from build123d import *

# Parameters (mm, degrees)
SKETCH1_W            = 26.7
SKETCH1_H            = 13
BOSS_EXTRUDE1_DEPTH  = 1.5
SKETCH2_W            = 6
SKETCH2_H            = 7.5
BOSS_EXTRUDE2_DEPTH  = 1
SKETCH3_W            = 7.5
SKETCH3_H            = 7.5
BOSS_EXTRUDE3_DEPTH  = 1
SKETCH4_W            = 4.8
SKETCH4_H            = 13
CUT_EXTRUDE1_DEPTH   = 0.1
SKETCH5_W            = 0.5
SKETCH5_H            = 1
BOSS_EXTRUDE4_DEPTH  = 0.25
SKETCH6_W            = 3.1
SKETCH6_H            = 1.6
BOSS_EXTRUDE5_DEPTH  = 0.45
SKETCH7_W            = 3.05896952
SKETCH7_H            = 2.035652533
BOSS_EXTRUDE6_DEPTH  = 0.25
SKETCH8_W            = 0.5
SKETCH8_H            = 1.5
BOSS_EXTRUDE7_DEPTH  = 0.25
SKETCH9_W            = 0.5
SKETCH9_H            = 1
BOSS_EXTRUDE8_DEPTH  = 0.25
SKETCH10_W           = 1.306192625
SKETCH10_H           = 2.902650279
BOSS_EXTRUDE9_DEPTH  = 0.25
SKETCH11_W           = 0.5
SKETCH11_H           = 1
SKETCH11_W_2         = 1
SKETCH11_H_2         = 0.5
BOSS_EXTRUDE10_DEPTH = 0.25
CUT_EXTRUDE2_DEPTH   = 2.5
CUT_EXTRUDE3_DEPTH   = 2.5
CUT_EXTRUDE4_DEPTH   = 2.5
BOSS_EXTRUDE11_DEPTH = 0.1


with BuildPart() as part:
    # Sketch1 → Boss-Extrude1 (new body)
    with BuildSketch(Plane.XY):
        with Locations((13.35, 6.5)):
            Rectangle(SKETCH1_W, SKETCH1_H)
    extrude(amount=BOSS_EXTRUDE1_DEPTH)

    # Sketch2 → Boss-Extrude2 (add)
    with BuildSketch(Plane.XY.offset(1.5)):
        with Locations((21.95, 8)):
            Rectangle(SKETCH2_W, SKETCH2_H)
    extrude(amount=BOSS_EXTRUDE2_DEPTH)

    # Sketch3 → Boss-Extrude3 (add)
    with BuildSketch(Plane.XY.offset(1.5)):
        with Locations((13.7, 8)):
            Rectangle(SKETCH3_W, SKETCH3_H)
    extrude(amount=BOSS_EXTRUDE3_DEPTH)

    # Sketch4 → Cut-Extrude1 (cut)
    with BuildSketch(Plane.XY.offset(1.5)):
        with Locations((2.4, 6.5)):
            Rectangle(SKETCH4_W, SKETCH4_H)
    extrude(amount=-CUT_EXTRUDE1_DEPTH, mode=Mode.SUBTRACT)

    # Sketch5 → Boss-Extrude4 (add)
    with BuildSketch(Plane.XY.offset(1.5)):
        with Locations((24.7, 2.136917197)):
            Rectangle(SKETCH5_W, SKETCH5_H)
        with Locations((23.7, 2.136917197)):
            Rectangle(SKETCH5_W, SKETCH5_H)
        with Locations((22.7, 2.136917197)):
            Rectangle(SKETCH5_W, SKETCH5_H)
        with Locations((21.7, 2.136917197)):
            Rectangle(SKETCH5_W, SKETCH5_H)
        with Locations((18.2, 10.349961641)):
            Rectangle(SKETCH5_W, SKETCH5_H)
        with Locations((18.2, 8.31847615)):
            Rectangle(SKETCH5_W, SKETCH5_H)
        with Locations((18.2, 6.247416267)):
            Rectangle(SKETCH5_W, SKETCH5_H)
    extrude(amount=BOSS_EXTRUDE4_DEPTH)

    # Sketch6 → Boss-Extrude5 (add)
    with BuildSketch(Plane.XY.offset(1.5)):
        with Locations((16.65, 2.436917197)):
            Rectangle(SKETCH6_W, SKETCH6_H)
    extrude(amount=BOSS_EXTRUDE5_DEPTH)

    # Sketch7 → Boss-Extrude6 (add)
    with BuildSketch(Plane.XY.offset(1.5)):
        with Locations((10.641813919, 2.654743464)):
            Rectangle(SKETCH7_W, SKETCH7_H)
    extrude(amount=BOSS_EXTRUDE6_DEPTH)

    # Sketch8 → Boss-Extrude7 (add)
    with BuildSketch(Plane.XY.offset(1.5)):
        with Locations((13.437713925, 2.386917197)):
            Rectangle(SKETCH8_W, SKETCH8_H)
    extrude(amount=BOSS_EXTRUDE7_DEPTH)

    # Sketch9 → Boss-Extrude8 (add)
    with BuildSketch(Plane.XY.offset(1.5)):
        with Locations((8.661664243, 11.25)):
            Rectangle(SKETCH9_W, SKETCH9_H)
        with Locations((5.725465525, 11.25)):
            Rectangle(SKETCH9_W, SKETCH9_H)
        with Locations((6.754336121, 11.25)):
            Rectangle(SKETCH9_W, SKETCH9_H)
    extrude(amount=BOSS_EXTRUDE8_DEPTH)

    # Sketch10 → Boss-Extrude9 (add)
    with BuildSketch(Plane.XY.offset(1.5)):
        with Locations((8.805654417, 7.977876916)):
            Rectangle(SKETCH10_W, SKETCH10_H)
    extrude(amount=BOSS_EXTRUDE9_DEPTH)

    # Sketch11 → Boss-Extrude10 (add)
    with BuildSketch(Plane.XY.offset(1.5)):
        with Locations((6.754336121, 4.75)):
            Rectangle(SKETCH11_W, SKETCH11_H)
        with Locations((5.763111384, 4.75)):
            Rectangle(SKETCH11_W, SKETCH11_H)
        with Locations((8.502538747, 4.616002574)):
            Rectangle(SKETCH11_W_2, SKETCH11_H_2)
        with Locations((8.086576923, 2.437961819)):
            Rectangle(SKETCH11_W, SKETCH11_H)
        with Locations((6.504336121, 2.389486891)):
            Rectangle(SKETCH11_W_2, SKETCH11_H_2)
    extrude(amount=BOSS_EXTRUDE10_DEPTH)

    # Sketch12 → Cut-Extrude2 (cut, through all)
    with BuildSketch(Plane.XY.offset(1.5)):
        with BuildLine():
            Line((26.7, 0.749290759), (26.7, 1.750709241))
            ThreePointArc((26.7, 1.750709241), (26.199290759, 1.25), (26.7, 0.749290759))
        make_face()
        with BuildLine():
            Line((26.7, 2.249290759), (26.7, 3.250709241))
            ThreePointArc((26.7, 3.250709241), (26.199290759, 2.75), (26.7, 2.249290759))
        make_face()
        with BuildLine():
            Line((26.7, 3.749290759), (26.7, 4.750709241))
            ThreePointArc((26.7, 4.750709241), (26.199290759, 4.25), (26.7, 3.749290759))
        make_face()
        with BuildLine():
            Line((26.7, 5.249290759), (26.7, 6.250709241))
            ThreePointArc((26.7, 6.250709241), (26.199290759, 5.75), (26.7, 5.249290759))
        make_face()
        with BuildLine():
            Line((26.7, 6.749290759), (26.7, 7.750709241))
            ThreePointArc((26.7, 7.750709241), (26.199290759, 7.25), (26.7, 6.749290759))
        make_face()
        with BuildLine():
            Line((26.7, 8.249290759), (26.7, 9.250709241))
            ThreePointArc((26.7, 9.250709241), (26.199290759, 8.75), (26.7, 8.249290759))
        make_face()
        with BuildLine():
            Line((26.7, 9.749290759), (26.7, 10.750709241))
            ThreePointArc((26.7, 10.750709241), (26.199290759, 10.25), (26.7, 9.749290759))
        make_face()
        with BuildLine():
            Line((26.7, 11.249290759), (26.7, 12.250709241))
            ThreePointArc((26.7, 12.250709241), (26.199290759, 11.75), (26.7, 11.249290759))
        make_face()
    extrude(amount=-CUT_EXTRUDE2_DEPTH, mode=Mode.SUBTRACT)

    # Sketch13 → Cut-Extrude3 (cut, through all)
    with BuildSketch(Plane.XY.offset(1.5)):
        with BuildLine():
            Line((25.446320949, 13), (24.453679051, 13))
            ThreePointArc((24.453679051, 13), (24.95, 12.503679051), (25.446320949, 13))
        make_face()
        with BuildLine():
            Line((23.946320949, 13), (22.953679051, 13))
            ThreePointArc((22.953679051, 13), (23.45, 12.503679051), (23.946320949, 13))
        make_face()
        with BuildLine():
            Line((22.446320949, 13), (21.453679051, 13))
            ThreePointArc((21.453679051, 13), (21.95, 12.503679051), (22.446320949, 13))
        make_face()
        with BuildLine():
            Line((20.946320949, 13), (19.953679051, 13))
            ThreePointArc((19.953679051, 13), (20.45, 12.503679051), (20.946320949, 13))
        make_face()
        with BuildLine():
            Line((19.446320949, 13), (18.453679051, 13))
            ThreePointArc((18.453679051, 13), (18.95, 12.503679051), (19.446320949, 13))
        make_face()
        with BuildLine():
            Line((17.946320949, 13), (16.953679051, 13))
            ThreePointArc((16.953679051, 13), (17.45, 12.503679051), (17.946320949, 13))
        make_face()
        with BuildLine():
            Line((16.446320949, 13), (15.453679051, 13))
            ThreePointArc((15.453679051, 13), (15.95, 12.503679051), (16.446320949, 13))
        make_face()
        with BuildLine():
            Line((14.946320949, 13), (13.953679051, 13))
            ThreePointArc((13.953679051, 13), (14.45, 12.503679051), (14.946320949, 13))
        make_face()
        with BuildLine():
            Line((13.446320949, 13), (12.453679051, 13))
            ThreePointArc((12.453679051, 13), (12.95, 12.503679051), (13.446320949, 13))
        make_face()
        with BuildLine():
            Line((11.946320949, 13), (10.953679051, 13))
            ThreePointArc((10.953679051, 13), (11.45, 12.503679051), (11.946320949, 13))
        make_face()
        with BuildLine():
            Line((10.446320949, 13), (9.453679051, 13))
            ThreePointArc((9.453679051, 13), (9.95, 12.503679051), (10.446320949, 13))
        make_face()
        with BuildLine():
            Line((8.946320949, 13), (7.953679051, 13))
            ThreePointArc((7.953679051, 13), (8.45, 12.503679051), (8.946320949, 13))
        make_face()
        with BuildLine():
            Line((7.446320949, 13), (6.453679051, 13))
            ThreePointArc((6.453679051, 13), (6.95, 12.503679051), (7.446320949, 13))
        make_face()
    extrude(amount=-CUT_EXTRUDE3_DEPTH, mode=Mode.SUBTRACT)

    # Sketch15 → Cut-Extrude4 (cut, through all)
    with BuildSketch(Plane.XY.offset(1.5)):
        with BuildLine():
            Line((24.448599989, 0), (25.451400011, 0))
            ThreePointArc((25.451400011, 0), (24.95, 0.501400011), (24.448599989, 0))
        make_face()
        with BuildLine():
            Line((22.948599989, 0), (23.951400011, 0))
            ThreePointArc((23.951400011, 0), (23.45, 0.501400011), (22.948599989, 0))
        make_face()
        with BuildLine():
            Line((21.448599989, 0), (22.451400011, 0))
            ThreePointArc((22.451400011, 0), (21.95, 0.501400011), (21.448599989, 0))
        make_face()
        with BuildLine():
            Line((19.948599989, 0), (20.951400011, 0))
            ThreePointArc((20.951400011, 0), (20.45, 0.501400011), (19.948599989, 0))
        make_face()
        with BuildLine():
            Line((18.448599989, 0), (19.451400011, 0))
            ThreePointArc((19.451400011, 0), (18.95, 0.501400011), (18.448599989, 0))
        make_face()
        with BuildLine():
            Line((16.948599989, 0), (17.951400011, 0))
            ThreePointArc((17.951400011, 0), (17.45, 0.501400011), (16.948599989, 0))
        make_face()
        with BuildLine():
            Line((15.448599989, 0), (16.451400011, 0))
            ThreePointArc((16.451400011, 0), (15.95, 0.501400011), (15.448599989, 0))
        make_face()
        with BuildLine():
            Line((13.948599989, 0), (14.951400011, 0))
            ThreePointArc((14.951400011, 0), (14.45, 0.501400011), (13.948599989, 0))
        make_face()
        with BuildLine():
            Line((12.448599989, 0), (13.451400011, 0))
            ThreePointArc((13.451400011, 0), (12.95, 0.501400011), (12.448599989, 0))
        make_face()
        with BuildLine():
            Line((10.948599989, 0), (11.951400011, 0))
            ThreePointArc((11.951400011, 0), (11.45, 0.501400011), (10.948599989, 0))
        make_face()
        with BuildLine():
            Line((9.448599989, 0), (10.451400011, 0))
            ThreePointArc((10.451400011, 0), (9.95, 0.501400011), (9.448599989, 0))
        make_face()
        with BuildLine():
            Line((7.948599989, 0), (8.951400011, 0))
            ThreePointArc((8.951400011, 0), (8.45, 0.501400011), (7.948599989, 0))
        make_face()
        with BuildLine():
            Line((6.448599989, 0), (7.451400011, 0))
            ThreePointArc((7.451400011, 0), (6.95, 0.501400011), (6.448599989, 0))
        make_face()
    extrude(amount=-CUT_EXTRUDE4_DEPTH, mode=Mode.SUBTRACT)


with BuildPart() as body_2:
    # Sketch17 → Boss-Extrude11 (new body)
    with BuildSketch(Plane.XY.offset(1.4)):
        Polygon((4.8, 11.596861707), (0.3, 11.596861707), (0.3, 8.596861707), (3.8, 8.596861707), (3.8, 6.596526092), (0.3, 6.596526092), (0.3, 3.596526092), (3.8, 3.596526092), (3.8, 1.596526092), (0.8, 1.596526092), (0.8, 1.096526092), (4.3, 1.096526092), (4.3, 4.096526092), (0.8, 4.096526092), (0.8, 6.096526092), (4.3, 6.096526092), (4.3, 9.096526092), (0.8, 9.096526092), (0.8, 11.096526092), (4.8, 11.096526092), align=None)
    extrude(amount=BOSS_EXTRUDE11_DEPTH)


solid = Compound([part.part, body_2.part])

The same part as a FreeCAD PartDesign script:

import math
import FreeCAD as App
import Part
import Sketcher

V = App.Vector


def add_polygon(sketch, points):
    """Adds a closed chain of lines whose ends are joined by coincident constraints."""
    first, n = sketch.GeometryCount, len(points)
    for a, b in zip(points, points[1:] + points[:1]):
        sketch.addGeometry(Part.LineSegment(App.Vector(*a, 0), App.Vector(*b, 0)), False)
    for i in range(n):
        sketch.addConstraint(Sketcher.Constraint("Coincident", first + i, 2, first + (i + 1) % n, 1))

doc = App.newDocument("Part")
params = doc.addObject("Spreadsheet::Sheet", "Params")
for row, (alias, value) in enumerate([
    ("sketch1_height", "13 mm"),
    ("sketch1_width", "26.7 mm"),
    ("pad1_length", "1.5 mm"),
    ("sketch2_width", "6 mm"),
    ("sketch2_height", "7.5 mm"),
    ("pad2_length", "1 mm"),
    ("sketch3_width", "7.5 mm"),
    ("pad3_length", "1 mm"),
    ("sketch4_height", "13 mm"),
    ("sketch4_width", "4.8 mm"),
    ("pocket1_length", "0.1 mm"),
    ("sketch5_height", "1 mm"),
    ("sketch5_width", "0.5 mm"),
    ("pad4_length", "0.25 mm"),
    ("sketch6_width", "3.1 mm"),
    ("sketch6_height", "1.6 mm"),
    ("pad5_length", "0.45 mm"),
    ("pad6_length", "0.25 mm"),
    ("sketch8_width", "0.5 mm"),
    ("sketch8_height", "1.5 mm"),
    ("pad7_length", "0.25 mm"),
    ("sketch9_height", "1 mm"),
    ("sketch9_width", "0.5 mm"),
    ("pad8_length", "0.25 mm"),
    ("pad9_length", "0.25 mm"),
    ("sketch11_width", "1 mm"),
    ("sketch11_width2", "0.5 mm"),
    ("pad10_length", "0.25 mm"),
    ("sketch15_width", "3 mm"),
    ("sketch15_width2", "4 mm"),
    ("sketch15_height", "2 mm"),
    ("sketch15_width3", "4.5 mm"),
    ("sketch15_height2", "0.5 mm"),
    ("pad11_length", "0.1 mm"),
], start=1):
    params.set(f"A{row}", alias)
    params.set(f"B{row}", "=" + value)
    params.setAlias(f"B{row}", alias)

body = doc.addObject("PartDesign::Body", "Body")

# Sketch on XY plane
sketch1 = body.newObject("Sketcher::SketchObject", "Sketch")
sketch1.AttachmentSupport = (doc.getObject("XY_Plane"), [""])
sketch1.MapMode = "FlatFace"
add_polygon(sketch1, [(0, 13), (0, 0), (26.7, 0), (26.7, 13)])  # lines 0-3
sketch1.addConstraint([
    Sketcher.Constraint("Vertical", 0),
    Sketcher.Constraint("Horizontal", 1),
    Sketcher.Constraint("Vertical", 2),
    Sketcher.Constraint("Horizontal", 3),
    Sketcher.Constraint("Coincident", 0, 2, -1, 1),
    Sketcher.Constraint("DistanceY", 0, 2, 0, 1, 13.0),
    Sketcher.Constraint("DistanceX", 1, 1, 1, 2, 26.7),
])
sketch1.setExpression("Constraints[9]", "Params.sketch1_height")
sketch1.setExpression("Constraints[10]", "Params.sketch1_width")
pad1 = body.newObject("PartDesign::Pad", "Pad")
pad1.Profile = sketch1
pad1.setExpression("Length", "Params.pad1_length")

# Sketch on XY plane
sketch2 = body.newObject("Sketcher::SketchObject", "Sketch001")
sketch2.AttachmentSupport = (doc.getObject("XY_Plane"), [""])
sketch2.MapMode = "FlatFace"
sketch2.AttachmentOffset = App.Placement(V(0, 0, 1.5), App.Rotation())
add_polygon(sketch2, [(18.95, 11.75), (18.95, 4.25), (24.95, 4.25), (24.95, 11.75)])  # lines 0-3
sketch2.addConstraint([
    Sketcher.Constraint("Vertical", 0),
    Sketcher.Constraint("Horizontal", 1),
    Sketcher.Constraint("Vertical", 2),
    Sketcher.Constraint("Horizontal", 3),
    Sketcher.Constraint("DistanceX", 1, 1, 1, 2, 6.0),
    Sketcher.Constraint("DistanceY", 0, 2, 0, 1, 7.5),
    Sketcher.Constraint("DistanceX", -1, 1, 0, 2, 18.95),
    Sketcher.Constraint("DistanceY", -1, 1, 0, 2, 4.25),
])
sketch2.setExpression("Constraints[8]", "Params.sketch2_width")
sketch2.setExpression("Constraints[9]", "Params.sketch2_height")
pad2 = body.newObject("PartDesign::Pad", "Pad001")
pad2.Profile = sketch2
pad2.setExpression("Length", "Params.pad2_length")

# Sketch on XY plane
sketch3 = body.newObject("Sketcher::SketchObject", "Sketch002")
sketch3.AttachmentSupport = (doc.getObject("XY_Plane"), [""])
sketch3.MapMode = "FlatFace"
sketch3.AttachmentOffset = App.Placement(V(0, 0, 1.5), App.Rotation())
add_polygon(sketch3, [(9.95, 11.75), (9.95, 4.25), (17.45, 4.25), (17.45, 11.75)])  # lines 0-3
sketch3.addConstraint([
    Sketcher.Constraint("Vertical", 0),
    Sketcher.Constraint("Horizontal", 1),
    Sketcher.Constraint("Vertical", 2),
    Sketcher.Constraint("Horizontal", 3),
    Sketcher.Constraint("Equal", 3, 0),
    Sketcher.Constraint("DistanceX", 1, 1, 1, 2, 7.5),
    Sketcher.Constraint("DistanceX", -1, 1, 0, 2, 9.95),
    Sketcher.Constraint("DistanceY", -1, 1, 0, 2, 4.25),
])
sketch3.setExpression("Constraints[9]", "Params.sketch3_width")
pad3 = body.newObject("PartDesign::Pad", "Pad002")
pad3.Profile = sketch3
pad3.setExpression("Length", "Params.pad3_length")

# Sketch on XY plane
sketch4 = body.newObject("Sketcher::SketchObject", "Sketch003")
sketch4.AttachmentSupport = (doc.getObject("XY_Plane"), [""])
sketch4.MapMode = "FlatFace"
sketch4.AttachmentOffset = App.Placement(V(0, 0, 1.5), App.Rotation())
add_polygon(sketch4, [(0, 13), (0, 0), (4.8, 0), (4.8, 13)])  # lines 0-3
sketch4.addConstraint([
    Sketcher.Constraint("Vertical", 0),
    Sketcher.Constraint("Horizontal", 1),
    Sketcher.Constraint("Vertical", 2),
    Sketcher.Constraint("Horizontal", 3),
    Sketcher.Constraint("Coincident", 0, 2, -1, 1),
    Sketcher.Constraint("DistanceY", 0, 2, 0, 1, 13.0),
    Sketcher.Constraint("DistanceX", 1, 1, 1, 2, 4.8),
])
sketch4.setExpression("Constraints[9]", "Params.sketch4_height")
sketch4.setExpression("Constraints[10]", "Params.sketch4_width")
pocket1 = body.newObject("PartDesign::Pocket", "Pocket")
pocket1.Profile = sketch4
pocket1.setExpression("Length", "Params.pocket1_length")

# Sketch on XY plane
sketch5 = body.newObject("Sketcher::SketchObject", "Sketch004")
sketch5.AttachmentSupport = (doc.getObject("XY_Plane"), [""])
sketch5.MapMode = "FlatFace"
sketch5.AttachmentOffset = App.Placement(V(0, 0, 1.5), App.Rotation())
add_polygon(sketch5, [(24.45, 2.636917), (24.45, 1.636917), (24.95, 1.636917), (24.95, 2.636917)])  # lines 0-3
add_polygon(sketch5, [(23.45, 2.636917), (23.45, 1.636917), (23.95, 1.636917), (23.95, 2.636917)])  # lines 4-7
add_polygon(sketch5, [(22.45, 2.636917), (22.45, 1.636917), (22.95, 1.636917), (22.95, 2.636917)])  # lines 8-11
add_polygon(sketch5, [(21.45, 2.636917), (21.45, 1.636917), (21.95, 1.636917), (21.95, 2.636917)])  # lines 12-15
add_polygon(sketch5, [(17.95, 10.849962), (17.95, 9.849962), (18.45, 9.849962), (18.45, 10.849962)])  # lines 16-19
add_polygon(sketch5, [(17.95, 8.818476), (17.95, 7.818476), (18.45, 7.818476), (18.45, 8.818476)])  # lines 20-23
add_polygon(sketch5, [(17.95, 6.747416), (17.95, 5.747416), (18.45, 5.747416), (18.45, 6.747416)])  # lines 24-27
sketch5.addConstraint([
    Sketcher.Constraint("Vertical", 0),
    Sketcher.Constraint("Horizontal", 1),
    Sketcher.Constraint("Vertical", 2),
    Sketcher.Constraint("Horizontal", 3),
    Sketcher.Constraint("Vertical", 4),
    Sketcher.Constraint("Horizontal", 5),
    Sketcher.Constraint("Vertical", 6),
    Sketcher.Constraint("Horizontal", 7),
    Sketcher.Constraint("Vertical", 8),
    Sketcher.Constraint("Horizontal", 9),
    Sketcher.Constraint("Vertical", 10),
    Sketcher.Constraint("Horizontal", 11),
    Sketcher.Constraint("Vertical", 12),
    Sketcher.Constraint("Horizontal", 13),
    Sketcher.Constraint("Vertical", 14),
    Sketcher.Constraint("Horizontal", 15),
    Sketcher.Constraint("Vertical", 16),
    Sketcher.Constraint("Horizontal", 17),
    Sketcher.Constraint("Vertical", 18),
    Sketcher.Constraint("Horizontal", 19),
    Sketcher.Constraint("Vertical", 20),
    Sketcher.Constraint("Horizontal", 21),
    Sketcher.Constraint("Vertical", 22),
    Sketcher.Constraint("Horizontal", 23),
    Sketcher.Constraint("Vertical", 24),
    Sketcher.Constraint("Horizontal", 25),
    Sketcher.Constraint("Vertical", 26),
    Sketcher.Constraint("Horizontal", 27),
    Sketcher.Constraint("Horizontal", 1, 2, 4, 2),
    Sketcher.Constraint("Horizontal", 3, 2, 6, 2),
    Sketcher.Constraint("Horizontal", 5, 2, 8, 2),
    Sketcher.Constraint("Horizontal", 7, 2, 10, 2),
    Sketcher.Constraint("Horizontal", 9, 2, 12, 2),
    Sketcher.Constraint("Horizontal", 11, 2, 14, 2),
    Sketcher.Constraint("Vertical", 19, 2, 20, 2),
    Sketcher.Constraint("Vertical", 18, 2, 21, 2),
    Sketcher.Constraint("Vertical", 23, 2, 24, 2),
    Sketcher.Constraint("Vertical", 22, 2, 25, 2),
    Sketcher.Constraint("Equal", 3, 5),
    Sketcher.Constraint("Equal", 7, 9),
    Sketcher.Constraint("Equal", 11, 13),
    Sketcher.Constraint("Equal", 15, 17),
    Sketcher.Constraint("Equal", 14, 16),
    Sketcher.Constraint("Equal", 18, 20),
    Sketcher.Constraint("Equal", 22, 24),
    Sketcher.Constraint("DistanceY", 0, 2, 0, 1, 1.0),
    Sketcher.Constraint("DistanceX", 1, 1, 1, 2, 0.5),
    Sketcher.Constraint("DistanceX", 4, 2, 0, 2, 1.0),
    Sketcher.Constraint("DistanceX", 8, 2, 4, 2, 1.0),
    Sketcher.Constraint("DistanceX", 12, 2, 8, 2, 1.0),
    Sketcher.Constraint("DistanceX", 16, 2, 14, 2, 4.0),
    Sketcher.Constraint("DistanceX", -1, 1, 0, 2, 24.45),
    Sketcher.Constraint("DistanceY", -1, 1, 16, 2, 9.849962),
    Sketcher.Constraint("DistanceY", 15, 2, 20, 2, 5.181559),
    Sketcher.Constraint("DistanceY", 24, 2, 20, 2, 2.07106),
    Sketcher.Constraint("DistanceY", -1, 1, 0, 2, 1.636917),
])
sketch5.setExpression("Constraints[73]", "Params.sketch5_height")
sketch5.setExpression("Constraints[74]", "Params.sketch5_width")
pad4 = body.newObject("PartDesign::Pad", "Pad003")
pad4.Profile = sketch5
pad4.setExpression("Length", "Params.pad4_length")

# Sketch on XY plane
sketch6 = body.newObject("Sketcher::SketchObject", "Sketch005")
sketch6.AttachmentSupport = (doc.getObject("XY_Plane"), [""])
sketch6.MapMode = "FlatFace"
sketch6.AttachmentOffset = App.Placement(V(0, 0, 1.5), App.Rotation())
add_polygon(sketch6, [(15.1, 3.236917), (15.1, 1.636917), (18.2, 1.636917), (18.2, 3.236917)])  # lines 0-3
sketch6.addConstraint([
    Sketcher.Constraint("Vertical", 0),
    Sketcher.Constraint("Horizontal", 1),
    Sketcher.Constraint("Vertical", 2),
    Sketcher.Constraint("Horizontal", 3),
    Sketcher.Constraint("DistanceX", 1, 1, 1, 2, 3.1),
    Sketcher.Constraint("DistanceY", 0, 2, 0, 1, 1.6),
    Sketcher.Constraint("DistanceX", -1, 1, 0, 2, 15.1),
    Sketcher.Constraint("DistanceY", -1, 1, 0, 2, 1.636917),
])
sketch6.setExpression("Constraints[8]", "Params.sketch6_width")
sketch6.setExpression("Constraints[9]", "Params.sketch6_height")
pad5 = body.newObject("PartDesign::Pad", "Pad004")
pad5.Profile = sketch6
pad5.setExpression("Length", "Params.pad5_length")

# Sketch on XY plane
sketch7 = body.newObject("Sketcher::SketchObject", "Sketch006")
sketch7.AttachmentSupport = (doc.getObject("XY_Plane"), [""])
sketch7.MapMode = "FlatFace"
sketch7.AttachmentOffset = App.Placement(V(0, 0, 1.5), App.Rotation())
add_polygon(sketch7, [(9.112329, 3.67257), (9.112329, 1.636917), (12.171299, 1.636917), (12.171299, 3.67257)])  # lines 0-3
sketch7.addConstraint([
    Sketcher.Constraint("Vertical", 0),
    Sketcher.Constraint("Horizontal", 1),
    Sketcher.Constraint("Vertical", 2),
    Sketcher.Constraint("Horizontal", 3),
    Sketcher.Constraint("DistanceX", 1, 1, 1, 2, 3.05897),
    Sketcher.Constraint("DistanceX", -1, 1, 1, 2, 12.171299),
    Sketcher.Constraint("DistanceY", 0, 2, 0, 1, 2.035653),
    Sketcher.Constraint("DistanceY", -1, 1, 2, 2, 3.67257),
])
pad6 = body.newObject("PartDesign::Pad", "Pad005")
pad6.Profile = sketch7
pad6.setExpression("Length", "Params.pad6_length")

# Sketch on XY plane
sketch8 = body.newObject("Sketcher::SketchObject", "Sketch007")
sketch8.AttachmentSupport = (doc.getObject("XY_Plane"), [""])
sketch8.MapMode = "FlatFace"
sketch8.AttachmentOffset = App.Placement(V(0, 0, 1.5), App.Rotation())
add_polygon(sketch8, [(13.187714, 3.136917), (13.187714, 1.636917), (13.687714, 1.636917), (13.687714, 3.136917)])  # lines 0-3
sketch8.addConstraint([
    Sketcher.Constraint("Vertical", 0),
    Sketcher.Constraint("Horizontal", 1),
    Sketcher.Constraint("Vertical", 2),
    Sketcher.Constraint("Horizontal", 3),
    Sketcher.Constraint("DistanceX", 1, 1, 1, 2, 0.5),
    Sketcher.Constraint("DistanceY", 0, 2, 0, 1, 1.5),
    Sketcher.Constraint("DistanceX", -1, 1, 0, 2, 13.187714),
    Sketcher.Constraint("DistanceY", -1, 1, 0, 2, 1.636917),
])
sketch8.setExpression("Constraints[8]", "Params.sketch8_width")
sketch8.setExpression("Constraints[9]", "Params.sketch8_height")
pad7 = body.newObject("PartDesign::Pad", "Pad006")
pad7.Profile = sketch8
pad7.setExpression("Length", "Params.pad7_length")

# Sketch on XY plane
sketch9 = body.newObject("Sketcher::SketchObject", "Sketch008")
sketch9.AttachmentSupport = (doc.getObject("XY_Plane"), [""])
sketch9.MapMode = "FlatFace"
sketch9.AttachmentOffset = App.Placement(V(0, 0, 1.5), App.Rotation())
add_polygon(sketch9, [(8.411664, 11.75), (8.411664, 10.75), (8.911664, 10.75), (8.911664, 11.75)])  # lines 0-3
add_polygon(sketch9, [(5.475466, 11.75), (5.475466, 10.75), (5.975466, 10.75), (5.975466, 11.75)])  # lines 4-7
add_polygon(sketch9, [(6.504336, 11.75), (6.504336, 10.75), (7.004336, 10.75), (7.004336, 11.75)])  # lines 8-11
sketch9.addConstraint([
    Sketcher.Constraint("Vertical", 0),
    Sketcher.Constraint("Horizontal", 1),
    Sketcher.Constraint("Vertical", 2),
    Sketcher.Constraint("Horizontal", 3),
    Sketcher.Constraint("Vertical", 4),
    Sketcher.Constraint("Horizontal", 5),
    Sketcher.Constraint("Vertical", 6),
    Sketcher.Constraint("Horizontal", 7),
    Sketcher.Constraint("Vertical", 8),
    Sketcher.Constraint("Horizontal", 9),
    Sketcher.Constraint("Vertical", 10),
    Sketcher.Constraint("Horizontal", 11),
    Sketcher.Constraint("Horizontal", 1, 2, 4, 2),
    Sketcher.Constraint("Horizontal", 3, 2, 6, 2),
    Sketcher.Constraint("Horizontal", 5, 2, 8, 2),
    Sketcher.Constraint("Horizontal", 7, 2, 10, 2),
    Sketcher.Constraint("Equal", 3, 5),
    Sketcher.Constraint("Equal", 7, 9),
    Sketcher.Constraint("DistanceY", 0, 2, 0, 1, 1.0),
    Sketcher.Constraint("DistanceX", 1, 1, 1, 2, 0.5),
    Sketcher.Constraint("DistanceY", -1, 1, 0, 2, 10.75),
    Sketcher.Constraint("DistanceX", 4, 2, 0, 2, 2.936199),
    Sketcher.Constraint("DistanceX", 5, 2, 8, 2, 0.528871),
    Sketcher.Constraint("DistanceX", -1, 1, 0, 2, 8.411664),
])
sketch9.setExpression("Constraints[30]", "Params.sketch9_height")
sketch9.setExpression("Constraints[31]", "Params.sketch9_width")
pad8 = body.newObject("PartDesign::Pad", "Pad007")
pad8.Profile = sketch9
pad8.setExpression("Length", "Params.pad8_length")

# Sketch on XY plane
sketch10 = body.newObject("Sketcher::SketchObject", "Sketch009")
sketch10.AttachmentSupport = (doc.getObject("XY_Plane"), [""])
sketch10.MapMode = "FlatFace"
sketch10.AttachmentOffset = App.Placement(V(0, 0, 1.5), App.Rotation())
add_polygon(sketch10, [(8.152558, 9.429202), (8.152558, 6.526552), (9.458751, 6.526552), (9.458751, 9.429202)])  # lines 0-3
sketch10.addConstraint([
    Sketcher.Constraint("Vertical", 0),
    Sketcher.Constraint("Horizontal", 1),
    Sketcher.Constraint("Vertical", 2),
    Sketcher.Constraint("Horizontal", 3),
    Sketcher.Constraint("DistanceY", 0, 2, 0, 1, 2.90265),
    Sketcher.Constraint("DistanceX", 1, 1, 1, 2, 1.306193),
    Sketcher.Constraint("DistanceX", -1, 1, 0, 2, 8.152558),
    Sketcher.Constraint("DistanceY", -1, 1, 0, 2, 6.526552),
])
pad9 = body.newObject("PartDesign::Pad", "Pad008")
pad9.Profile = sketch10
pad9.setExpression("Length", "Params.pad9_length")

# Sketch on XY plane
sketch11 = body.newObject("Sketcher::SketchObject", "Sketch010")
sketch11.AttachmentSupport = (doc.getObject("XY_Plane"), [""])
sketch11.MapMode = "FlatFace"
sketch11.AttachmentOffset = App.Placement(V(0, 0, 1.5), App.Rotation())
add_polygon(sketch11, [(6.504336, 5.25), (6.504336, 4.25), (7.004336, 4.25), (7.004336, 5.25)])  # lines 0-3
add_polygon(sketch11, [(5.513111, 5.25), (5.513111, 4.25), (6.013111, 4.25), (6.013111, 5.25)])  # lines 4-7
add_polygon(sketch11, [(8.002539, 4.866003), (8.002539, 4.366003), (9.002539, 4.366003), (9.002539, 4.866003)])  # lines 8-11
add_polygon(sketch11, [(7.836577, 2.937962), (7.836577, 1.937962), (8.336577, 1.937962), (8.336577, 2.937962)])  # lines 12-15
add_polygon(sketch11, [(6.004336, 2.639487), (6.004336, 2.139487), (7.004336, 2.139487), (7.004336, 2.639487)])  # lines 16-19
sketch11.addConstraint([
    Sketcher.Constraint("Vertical", 0),
    Sketcher.Constraint("Horizontal", 1),
    Sketcher.Constraint("Vertical", 2),
    Sketcher.Constraint("Horizontal", 3),
    Sketcher.Constraint("Vertical", 4),
    Sketcher.Constraint("Horizontal", 5),
    Sketcher.Constraint("Vertical", 6),
    Sketcher.Constraint("Horizontal", 7),
    Sketcher.Constraint("Vertical", 8),
    Sketcher.Constraint("Horizontal", 9),
    Sketcher.Constraint("Vertical", 10),
    Sketcher.Constraint("Horizontal", 11),
    Sketcher.Constraint("Vertical", 12),
    Sketcher.Constraint("Horizontal", 13),
    Sketcher.Constraint("Vertical", 14),
    Sketcher.Constraint("Horizontal", 15),
    Sketcher.Constraint("Vertical", 16),
    Sketcher.Constraint("Horizontal", 17),
    Sketcher.Constraint("Vertical", 18),
    Sketcher.Constraint("Horizontal", 19),
    Sketcher.Constraint("Horizontal", 1, 2, 4, 2),
    Sketcher.Constraint("Horizontal", 3, 2, 6, 2),
    Sketcher.Constraint("Vertical", 2, 2, 17, 2),
    Sketcher.Constraint("Equal", 3, 5),
    Sketcher.Constraint("Equal", 7, 13),
    Sketcher.Constraint("Equal", 11, 17),
    Sketcher.Constraint("Equal", 19, 0),
    Sketcher.Constraint("Equal", 15, 8),
    Sketcher.Constraint("Equal", 6, 12),
    Sketcher.Constraint("Equal", 10, 16),
    Sketcher.Constraint("DistanceX", 9, 1, 9, 2, 1.0),
    Sketcher.Constraint("DistanceX", 1, 1, 1, 2, 0.5),
    Sketcher.Constraint("DistanceY", -1, 1, 0, 2, 4.25),
    Sketcher.Constraint("DistanceX", -1, 1, 4, 2, 5.513111),
    Sketcher.Constraint("DistanceX", -1, 1, 8, 2, 8.002539),
    Sketcher.Constraint("DistanceY", -1, 1, 12, 2, 1.937962),
    Sketcher.Constraint("DistanceX", 12, 2, 8, 2, 0.165962),
    Sketcher.Constraint("DistanceY", 12, 2, 8, 2, 2.428041),
    Sketcher.Constraint("DistanceX", 1, 2, 12, 2, 0.832241),
    Sketcher.Constraint("DistanceY", -1, 1, 16, 2, 2.139487),
])
sketch11.setExpression("Constraints[50]", "Params.sketch11_width")
sketch11.setExpression("Constraints[51]", "Params.sketch11_width2")
pad10 = body.newObject("PartDesign::Pad", "Pad009")
pad10.Profile = sketch11
pad10.setExpression("Length", "Params.pad10_length")

# Sketch on XY plane
sketch12 = body.newObject("Sketcher::SketchObject", "Sketch011")
sketch12.AttachmentSupport = (doc.getObject("XY_Plane"), [""])
sketch12.MapMode = "FlatFace"
sketch12.AttachmentOffset = App.Placement(V(0, 0, 1.5), App.Rotation())
sketch12.addGeometry([
    Part.LineSegment(V(26.7, 0.749291, 0), V(26.7, 1.750709, 0)),  # 0
    Part.ArcOfCircle(Part.Circle(V(26.7, 1.25, 0), V(0, 0, 1), 0.500709), math.radians(90), math.radians(270)),  # 1
    Part.LineSegment(V(26.7, 2.249291, 0), V(26.7, 3.250709, 0)),  # 2
    Part.ArcOfCircle(Part.Circle(V(26.7, 2.75, 0), V(0, 0, 1), 0.500709), math.radians(90), math.radians(270)),  # 3
    Part.LineSegment(V(26.7, 3.749291, 0), V(26.7, 4.750709, 0)),  # 4
    Part.ArcOfCircle(Part.Circle(V(26.7, 4.25, 0), V(0, 0, 1), 0.500709), math.radians(90), math.radians(270)),  # 5
    Part.LineSegment(V(26.7, 5.249291, 0), V(26.7, 6.250709, 0)),  # 6
    Part.ArcOfCircle(Part.Circle(V(26.7, 5.75, 0), V(0, 0, 1), 0.500709), math.radians(90), math.radians(270)),  # 7
    Part.LineSegment(V(26.7, 6.749291, 0), V(26.7, 7.750709, 0)),  # 8
    Part.ArcOfCircle(Part.Circle(V(26.7, 7.25, 0), V(0, 0, 1), 0.500709), math.radians(90), math.radians(270)),  # 9
    Part.LineSegment(V(26.7, 8.249291, 0), V(26.7, 9.250709, 0)),  # 10
    Part.ArcOfCircle(Part.Circle(V(26.7, 8.75, 0), V(0, 0, 1), 0.500709), math.radians(90), math.radians(270)),  # 11
    Part.LineSegment(V(26.7, 9.749291, 0), V(26.7, 10.750709, 0)),  # 12
    Part.ArcOfCircle(Part.Circle(V(26.7, 10.25, 0), V(0, 0, 1), 0.500709), math.radians(90), math.radians(270)),  # 13
    Part.LineSegment(V(26.7, 11.249291, 0), V(26.7, 12.250709, 0)),  # 14
    Part.ArcOfCircle(Part.Circle(V(26.7, 11.75, 0), V(0, 0, 1), 0.500709), math.radians(90), math.radians(270)),  # 15
], False)
sketch12.addConstraint([
    Sketcher.Constraint("Coincident", 0, 1, 1, 2),
    Sketcher.Constraint("Coincident", 1, 1, 0, 2),
    Sketcher.Constraint("Coincident", 2, 1, 3, 2),
    Sketcher.Constraint("Coincident", 3, 1, 2, 2),
    Sketcher.Constraint("Coincident", 4, 1, 5, 2),
    Sketcher.Constraint("Coincident", 5, 1, 4, 2),
    Sketcher.Constraint("Coincident", 6, 1, 7, 2),
    Sketcher.Constraint("Coincident", 7, 1, 6, 2),
    Sketcher.Constraint("Coincident", 8, 1, 9, 2),
    Sketcher.Constraint("Coincident", 9, 1, 8, 2),
    Sketcher.Constraint("Coincident", 10, 1, 11, 2),
    Sketcher.Constraint("Coincident", 11, 1, 10, 2),
    Sketcher.Constraint("Coincident", 12, 1, 13, 2),
    Sketcher.Constraint("Coincident", 13, 1, 12, 2),
    Sketcher.Constraint("Coincident", 14, 1, 15, 2),
    Sketcher.Constraint("Coincident", 15, 1, 14, 2),
    Sketcher.Constraint("Vertical", 0),
    Sketcher.Constraint("Vertical", 2),
    Sketcher.Constraint("Vertical", 4),
    Sketcher.Constraint("Vertical", 6),
    Sketcher.Constraint("Vertical", 8),
    Sketcher.Constraint("Vertical", 10),
    Sketcher.Constraint("Vertical", 12),
    Sketcher.Constraint("Vertical", 14),
    Sketcher.Constraint("Equal", 1, 3),
    Sketcher.Constraint("Equal", 3, 5),
    Sketcher.Constraint("Equal", 5, 7),
    Sketcher.Constraint("Equal", 7, 9),
    Sketcher.Constraint("Equal", 9, 11),
    Sketcher.Constraint("Equal", 11, 13),
    Sketcher.Constraint("Equal", 13, 15),
    Sketcher.Constraint("Vertical", 1, 3, 3, 3),
    Sketcher.Constraint("Vertical", 3, 3, 5, 3),
    Sketcher.Constraint("Vertical", 5, 3, 7, 3),
    Sketcher.Constraint("Vertical", 7, 3, 9, 3),
    Sketcher.Constraint("Vertical", 9, 3, 11, 3),
    Sketcher.Constraint("Vertical", 11, 3, 13, 3),
    Sketcher.Constraint("Vertical", 13, 3, 15, 3),
    Sketcher.Constraint("Vertical", 15, 3, 0, 1),
    Sketcher.Constraint("Vertical", 1, 1, 2, 1),
    Sketcher.Constraint("Vertical", 3, 1, 4, 1),
    Sketcher.Constraint("Vertical", 5, 1, 6, 1),
    Sketcher.Constraint("Vertical", 7, 1, 8, 1),
    Sketcher.Constraint("Vertical", 9, 1, 10, 1),
    Sketcher.Constraint("Vertical", 11, 1, 12, 1),
    Sketcher.Constraint("Vertical", 13, 1, 14, 1),
    Sketcher.Constraint("DistanceY", 1, 3, 5, 3, 3.0),
    Sketcher.Constraint("DistanceY", 3, 3, 7, 3, 3.0),
    Sketcher.Constraint("DistanceY", 5, 3, 9, 3, 3.0),
    Sketcher.Constraint("DistanceY", 7, 3, 11, 3, 3.0),
    Sketcher.Constraint("DistanceY", 9, 3, 13, 3, 3.0),
    Sketcher.Constraint("DistanceY", 11, 3, 15, 3, 3.0),
    Sketcher.Constraint("DistanceX", -1, 1, 1, 3, 26.7),
    Sketcher.Constraint("DistanceY", 1, 3, 3, 3, 1.5),
    Sketcher.Constraint("DistanceY", -1, 1, 1, 3, 1.25),
    Sketcher.Constraint("Radius", 1, 0.500709),
])
pocket2 = body.newObject("PartDesign::Pocket", "Pocket001")
pocket2.Profile = sketch12
pocket2.Type = "ThroughAll"

# Sketch on XY plane
sketch13 = body.newObject("Sketcher::SketchObject", "Sketch012")
sketch13.AttachmentSupport = (doc.getObject("XY_Plane"), [""])
sketch13.MapMode = "FlatFace"
sketch13.AttachmentOffset = App.Placement(V(0, 0, 1.5), App.Rotation())
sketch13.addGeometry([
    Part.LineSegment(V(25.446321, 13, 0), V(24.453679, 13, 0)),  # 0
    Part.ArcOfCircle(Part.Circle(V(24.95, 13, 0), V(0, 0, 1), 0.496321), math.radians(180), math.radians(360)),  # 1
    Part.LineSegment(V(23.946321, 13, 0), V(22.953679, 13, 0)),  # 2
    Part.ArcOfCircle(Part.Circle(V(23.45, 13, 0), V(0, 0, 1), 0.496321), math.radians(180), math.radians(360)),  # 3
    Part.LineSegment(V(22.446321, 13, 0), V(21.453679, 13, 0)),  # 4
    Part.ArcOfCircle(Part.Circle(V(21.95, 13, 0), V(0, 0, 1), 0.496321), math.radians(180), math.radians(360)),  # 5
    Part.LineSegment(V(20.946321, 13, 0), V(19.953679, 13, 0)),  # 6
    Part.ArcOfCircle(Part.Circle(V(20.45, 13, 0), V(0, 0, 1), 0.496321), math.radians(180), math.radians(360)),  # 7
    Part.LineSegment(V(19.446321, 13, 0), V(18.453679, 13, 0)),  # 8
    Part.ArcOfCircle(Part.Circle(V(18.95, 13, 0), V(0, 0, 1), 0.496321), math.radians(180), math.radians(360)),  # 9
    Part.LineSegment(V(17.946321, 13, 0), V(16.953679, 13, 0)),  # 10
    Part.ArcOfCircle(Part.Circle(V(17.45, 13, 0), V(0, 0, 1), 0.496321), math.radians(180), math.radians(360)),  # 11
    Part.LineSegment(V(16.446321, 13, 0), V(15.453679, 13, 0)),  # 12
    Part.ArcOfCircle(Part.Circle(V(15.95, 13, 0), V(0, 0, 1), 0.496321), math.radians(180), math.radians(360)),  # 13
    Part.LineSegment(V(14.946321, 13, 0), V(13.953679, 13, 0)),  # 14
    Part.ArcOfCircle(Part.Circle(V(14.45, 13, 0), V(0, 0, 1), 0.496321), math.radians(180), math.radians(360)),  # 15
    Part.LineSegment(V(13.446321, 13, 0), V(12.453679, 13, 0)),  # 16
    Part.ArcOfCircle(Part.Circle(V(12.95, 13, 0), V(0, 0, 1), 0.496321), math.radians(180), math.radians(360)),  # 17
    Part.LineSegment(V(11.946321, 13, 0), V(10.953679, 13, 0)),  # 18
    Part.ArcOfCircle(Part.Circle(V(11.45, 13, 0), V(0, 0, 1), 0.496321), math.radians(180), math.radians(360)),  # 19
    Part.LineSegment(V(10.446321, 13, 0), V(9.453679, 13, 0)),  # 20
    Part.ArcOfCircle(Part.Circle(V(9.95, 13, 0), V(0, 0, 1), 0.496321), math.radians(180), math.radians(360)),  # 21
    Part.LineSegment(V(8.946321, 13, 0), V(7.953679, 13, 0)),  # 22
    Part.ArcOfCircle(Part.Circle(V(8.45, 13, 0), V(0, 0, 1), 0.496321), math.radians(180), math.radians(360)),  # 23
    Part.LineSegment(V(7.446321, 13, 0), V(6.453679, 13, 0)),  # 24
    Part.ArcOfCircle(Part.Circle(V(6.95, 13, 0), V(0, 0, 1), 0.496321), math.radians(180), math.radians(360)),  # 25
], False)
sketch13.addConstraint([
    Sketcher.Constraint("Coincident", 0, 1, 1, 2),
    Sketcher.Constraint("Coincident", 1, 1, 0, 2),
    Sketcher.Constraint("Coincident", 2, 1, 3, 2),
    Sketcher.Constraint("Coincident", 3, 1, 2, 2),
    Sketcher.Constraint("Coincident", 4, 1, 5, 2),
    Sketcher.Constraint("Coincident", 5, 1, 4, 2),
    Sketcher.Constraint("Coincident", 6, 1, 7, 2),
    Sketcher.Constraint("Coincident", 7, 1, 6, 2),
    Sketcher.Constraint("Coincident", 8, 1, 9, 2),
    Sketcher.Constraint("Coincident", 9, 1, 8, 2),
    Sketcher.Constraint("Coincident", 10, 1, 11, 2),
    Sketcher.Constraint("Coincident", 11, 1, 10, 2),
    Sketcher.Constraint("Coincident", 12, 1, 13, 2),
    Sketcher.Constraint("Coincident", 13, 1, 12, 2),
    Sketcher.Constraint("Coincident", 14, 1, 15, 2),
    Sketcher.Constraint("Coincident", 15, 1, 14, 2),
    Sketcher.Constraint("Coincident", 16, 1, 17, 2),
    Sketcher.Constraint("Coincident", 17, 1, 16, 2),
    Sketcher.Constraint("Coincident", 18, 1, 19, 2),
    Sketcher.Constraint("Coincident", 19, 1, 18, 2),
    Sketcher.Constraint("Coincident", 20, 1, 21, 2),
    Sketcher.Constraint("Coincident", 21, 1, 20, 2),
    Sketcher.Constraint("Coincident", 22, 1, 23, 2),
    Sketcher.Constraint("Coincident", 23, 1, 22, 2),
    Sketcher.Constraint("Coincident", 24, 1, 25, 2),
    Sketcher.Constraint("Coincident", 25, 1, 24, 2),
    Sketcher.Constraint("Horizontal", 0),
    Sketcher.Constraint("Horizontal", 2),
    Sketcher.Constraint("Horizontal", 4),
    Sketcher.Constraint("Horizontal", 6),
    Sketcher.Constraint("Horizontal", 8),
    Sketcher.Constraint("Horizontal", 10),
    Sketcher.Constraint("Horizontal", 12),
    Sketcher.Constraint("Horizontal", 14),
    Sketcher.Constraint("Horizontal", 16),
    Sketcher.Constraint("Horizontal", 18),
    Sketcher.Constraint("Horizontal", 20),
    Sketcher.Constraint("Horizontal", 22),
    Sketcher.Constraint("Horizontal", 24),
    Sketcher.Constraint("Equal", 1, 3),
    Sketcher.Constraint("Equal", 3, 5),
    Sketcher.Constraint("Equal", 5, 7),
    Sketcher.Constraint("Equal", 7, 9),
    Sketcher.Constraint("Equal", 9, 11),
    Sketcher.Constraint("Equal", 11, 13),
    Sketcher.Constraint("Equal", 13, 15),
    Sketcher.Constraint("Equal", 15, 17),
    Sketcher.Constraint("Equal", 17, 19),
    Sketcher.Constraint("Equal", 19, 21),
    Sketcher.Constraint("Equal", 21, 23),
    Sketcher.Constraint("Equal", 23, 25),
    Sketcher.Constraint("Horizontal", 1, 3, 3, 3),
    Sketcher.Constraint("Horizontal", 3, 3, 5, 3),
    Sketcher.Constraint("Horizontal", 5, 3, 7, 3),
    Sketcher.Constraint("Horizontal", 7, 3, 9, 3),
    Sketcher.Constraint("Horizontal", 9, 3, 11, 3),
    Sketcher.Constraint("Horizontal", 11, 3, 13, 3),
    Sketcher.Constraint("Horizontal", 13, 3, 15, 3),
    Sketcher.Constraint("Horizontal", 15, 3, 17, 3),
    Sketcher.Constraint("Horizontal", 17, 3, 19, 3),
    Sketcher.Constraint("Horizontal", 19, 3, 21, 3),
    Sketcher.Constraint("Horizontal", 21, 3, 23, 3),
    Sketcher.Constraint("Horizontal", 23, 3, 25, 3),
    Sketcher.Constraint("Horizontal", 25, 3, 0, 1),
    Sketcher.Constraint("Horizontal", 1, 1, 2, 1),
    Sketcher.Constraint("Horizontal", 3, 1, 4, 1),
    Sketcher.Constraint("Horizontal", 5, 1, 6, 1),
    Sketcher.Constraint("Horizontal", 7, 1, 8, 1),
    Sketcher.Constraint("Horizontal", 9, 1, 10, 1),
    Sketcher.Constraint("Horizontal", 11, 1, 12, 1),
    Sketcher.Constraint("Horizontal", 13, 1, 14, 1),
    Sketcher.Constraint("Horizontal", 15, 1, 16, 1),
    Sketcher.Constraint("Horizontal", 17, 1, 18, 1),
    Sketcher.Constraint("Horizontal", 19, 1, 20, 1),
    Sketcher.Constraint("Horizontal", 21, 1, 22, 1),
    Sketcher.Constraint("Horizontal", 23, 1, 24, 1),
    Sketcher.Constraint("DistanceY", -1, 1, 1, 3, 13.0),
    Sketcher.Constraint("DistanceX", 5, 3, 1, 3, 3.0),
    Sketcher.Constraint("DistanceX", 7, 3, 3, 3, 3.0),
    Sketcher.Constraint("DistanceX", 9, 3, 5, 3, 3.0),
    Sketcher.Constraint("DistanceX", 11, 3, 7, 3, 3.0),
    Sketcher.Constraint("DistanceX", 13, 3, 9, 3, 3.0),
    Sketcher.Constraint("DistanceX", 15, 3, 11, 3, 3.0),
    Sketcher.Constraint("DistanceX", 17, 3, 13, 3, 3.0),
    Sketcher.Constraint("DistanceX", 19, 3, 15, 3, 3.0),
    Sketcher.Constraint("DistanceX", 21, 3, 17, 3, 3.0),
    Sketcher.Constraint("DistanceX", 23, 3, 19, 3, 3.0),
    Sketcher.Constraint("DistanceX", 25, 3, 21, 3, 3.0),
    Sketcher.Constraint("DistanceX", 3, 3, 1, 3, 1.5),
    Sketcher.Constraint("DistanceX", -1, 1, 1, 3, 24.95),
    Sketcher.Constraint("Radius", 1, 0.496321),
])
pocket3 = body.newObject("PartDesign::Pocket", "Pocket002")
pocket3.Profile = sketch13
pocket3.Type = "ThroughAll"

# Sketch on XY plane
sketch14 = body.newObject("Sketcher::SketchObject", "Sketch013")
sketch14.AttachmentSupport = (doc.getObject("XY_Plane"), [""])
sketch14.MapMode = "FlatFace"
sketch14.AttachmentOffset = App.Placement(V(0, 0, 1.5), App.Rotation())
sketch14.addGeometry([
    Part.LineSegment(V(24.4486, 0, 0), V(25.4514, 0, 0)),  # 0
    Part.ArcOfCircle(Part.Circle(V(24.95, 0, 0), V(0, 0, 1), 0.5014), math.radians(0), math.radians(180)),  # 1
    Part.LineSegment(V(22.9486, 0, 0), V(23.9514, 0, 0)),  # 2
    Part.ArcOfCircle(Part.Circle(V(23.45, 0, 0), V(0, 0, 1), 0.5014), math.radians(0), math.radians(180)),  # 3
    Part.LineSegment(V(21.4486, 0, 0), V(22.4514, 0, 0)),  # 4
    Part.ArcOfCircle(Part.Circle(V(21.95, 0, 0), V(0, 0, 1), 0.5014), math.radians(0), math.radians(180)),  # 5
    Part.LineSegment(V(19.9486, 0, 0), V(20.9514, 0, 0)),  # 6
    Part.ArcOfCircle(Part.Circle(V(20.45, 0, 0), V(0, 0, 1), 0.5014), math.radians(0), math.radians(180)),  # 7
    Part.LineSegment(V(18.4486, 0, 0), V(19.4514, 0, 0)),  # 8
    Part.ArcOfCircle(Part.Circle(V(18.95, 0, 0), V(0, 0, 1), 0.5014), math.radians(0), math.radians(180)),  # 9
    Part.LineSegment(V(16.9486, 0, 0), V(17.9514, 0, 0)),  # 10
    Part.ArcOfCircle(Part.Circle(V(17.45, 0, 0), V(0, 0, 1), 0.5014), math.radians(0), math.radians(180)),  # 11
    Part.LineSegment(V(15.4486, 0, 0), V(16.4514, 0, 0)),  # 12
    Part.ArcOfCircle(Part.Circle(V(15.95, 0, 0), V(0, 0, 1), 0.5014), math.radians(0), math.radians(180)),  # 13
    Part.LineSegment(V(13.9486, 0, 0), V(14.9514, 0, 0)),  # 14
    Part.ArcOfCircle(Part.Circle(V(14.45, 0, 0), V(0, 0, 1), 0.5014), math.radians(0), math.radians(180)),  # 15
    Part.LineSegment(V(12.4486, 0, 0), V(13.4514, 0, 0)),  # 16
    Part.ArcOfCircle(Part.Circle(V(12.95, 0, 0), V(0, 0, 1), 0.5014), math.radians(0), math.radians(180)),  # 17
    Part.LineSegment(V(10.9486, 0, 0), V(11.9514, 0, 0)),  # 18
    Part.ArcOfCircle(Part.Circle(V(11.45, 0, 0), V(0, 0, 1), 0.5014), math.radians(0), math.radians(180)),  # 19
    Part.LineSegment(V(9.4486, 0, 0), V(10.4514, 0, 0)),  # 20
    Part.ArcOfCircle(Part.Circle(V(9.95, 0, 0), V(0, 0, 1), 0.5014), math.radians(0), math.radians(180)),  # 21
    Part.LineSegment(V(7.9486, 0, 0), V(8.9514, 0, 0)),  # 22
    Part.ArcOfCircle(Part.Circle(V(8.45, 0, 0), V(0, 0, 1), 0.5014), math.radians(0), math.radians(180)),  # 23
    Part.LineSegment(V(6.4486, 0, 0), V(7.4514, 0, 0)),  # 24
    Part.ArcOfCircle(Part.Circle(V(6.95, 0, 0), V(0, 0, 1), 0.5014), math.radians(0), math.radians(180)),  # 25
], False)
sketch14.addConstraint([
    Sketcher.Constraint("Coincident", 0, 1, 1, 2),
    Sketcher.Constraint("Coincident", 1, 1, 0, 2),
    Sketcher.Constraint("Coincident", 2, 1, 3, 2),
    Sketcher.Constraint("Coincident", 3, 1, 2, 2),
    Sketcher.Constraint("Coincident", 4, 1, 5, 2),
    Sketcher.Constraint("Coincident", 5, 1, 4, 2),
    Sketcher.Constraint("Coincident", 6, 1, 7, 2),
    Sketcher.Constraint("Coincident", 7, 1, 6, 2),
    Sketcher.Constraint("Coincident", 8, 1, 9, 2),
    Sketcher.Constraint("Coincident", 9, 1, 8, 2),
    Sketcher.Constraint("Coincident", 10, 1, 11, 2),
    Sketcher.Constraint("Coincident", 11, 1, 10, 2),
    Sketcher.Constraint("Coincident", 12, 1, 13, 2),
    Sketcher.Constraint("Coincident", 13, 1, 12, 2),
    Sketcher.Constraint("Coincident", 14, 1, 15, 2),
    Sketcher.Constraint("Coincident", 15, 1, 14, 2),
    Sketcher.Constraint("Coincident", 16, 1, 17, 2),
    Sketcher.Constraint("Coincident", 17, 1, 16, 2),
    Sketcher.Constraint("Coincident", 18, 1, 19, 2),
    Sketcher.Constraint("Coincident", 19, 1, 18, 2),
    Sketcher.Constraint("Coincident", 20, 1, 21, 2),
    Sketcher.Constraint("Coincident", 21, 1, 20, 2),
    Sketcher.Constraint("Coincident", 22, 1, 23, 2),
    Sketcher.Constraint("Coincident", 23, 1, 22, 2),
    Sketcher.Constraint("Coincident", 24, 1, 25, 2),
    Sketcher.Constraint("Coincident", 25, 1, 24, 2),
    Sketcher.Constraint("Horizontal", 0),
    Sketcher.Constraint("Horizontal", 2),
    Sketcher.Constraint("Horizontal", 4),
    Sketcher.Constraint("Horizontal", 6),
    Sketcher.Constraint("Horizontal", 8),
    Sketcher.Constraint("Horizontal", 10),
    Sketcher.Constraint("Horizontal", 12),
    Sketcher.Constraint("Horizontal", 14),
    Sketcher.Constraint("Horizontal", 16),
    Sketcher.Constraint("Horizontal", 18),
    Sketcher.Constraint("Horizontal", 20),
    Sketcher.Constraint("Horizontal", 22),
    Sketcher.Constraint("Horizontal", 24),
    Sketcher.Constraint("Equal", 1, 3),
    Sketcher.Constraint("Equal", 3, 5),
    Sketcher.Constraint("Equal", 5, 7),
    Sketcher.Constraint("Equal", 7, 9),
    Sketcher.Constraint("Equal", 9, 11),
    Sketcher.Constraint("Equal", 11, 13),
    Sketcher.Constraint("Equal", 13, 15),
    Sketcher.Constraint("Equal", 15, 17),
    Sketcher.Constraint("Equal", 17, 19),
    Sketcher.Constraint("Equal", 19, 21),
    Sketcher.Constraint("Equal", 21, 23),
    Sketcher.Constraint("Equal", 23, 25),
    Sketcher.Constraint("PointOnObject", 1, 3, -1),
    Sketcher.Constraint("PointOnObject", 3, 3, -1),
    Sketcher.Constraint("PointOnObject", 5, 3, -1),
    Sketcher.Constraint("PointOnObject", 7, 3, -1),
    Sketcher.Constraint("PointOnObject", 9, 3, -1),
    Sketcher.Constraint("PointOnObject", 11, 3, -1),
    Sketcher.Constraint("PointOnObject", 13, 3, -1),
    Sketcher.Constraint("PointOnObject", 15, 3, -1),
    Sketcher.Constraint("PointOnObject", 17, 3, -1),
    Sketcher.Constraint("PointOnObject", 19, 3, -1),
    Sketcher.Constraint("PointOnObject", 21, 3, -1),
    Sketcher.Constraint("PointOnObject", 23, 3, -1),
    Sketcher.Constraint("PointOnObject", 25, 3, -1),
    Sketcher.Constraint("PointOnObject", 0, 1, -1),
    Sketcher.Constraint("PointOnObject", 2, 1, -1),
    Sketcher.Constraint("PointOnObject", 4, 1, -1),
    Sketcher.Constraint("PointOnObject", 6, 1, -1),
    Sketcher.Constraint("PointOnObject", 8, 1, -1),
    Sketcher.Constraint("PointOnObject", 10, 1, -1),
    Sketcher.Constraint("PointOnObject", 12, 1, -1),
    Sketcher.Constraint("PointOnObject", 14, 1, -1),
    Sketcher.Constraint("PointOnObject", 16, 1, -1),
    Sketcher.Constraint("PointOnObject", 18, 1, -1),
    Sketcher.Constraint("PointOnObject", 20, 1, -1),
    Sketcher.Constraint("PointOnObject", 22, 1, -1),
    Sketcher.Constraint("PointOnObject", 24, 1, -1),
    Sketcher.Constraint("DistanceX", 5, 3, 1, 3, 3.0),
    Sketcher.Constraint("DistanceX", 7, 3, 3, 3, 3.0),
    Sketcher.Constraint("DistanceX", 9, 3, 5, 3, 3.0),
    Sketcher.Constraint("DistanceX", 11, 3, 7, 3, 3.0),
    Sketcher.Constraint("DistanceX", 13, 3, 9, 3, 3.0),
    Sketcher.Constraint("DistanceX", 15, 3, 11, 3, 3.0),
    Sketcher.Constraint("DistanceX", 17, 3, 13, 3, 3.0),
    Sketcher.Constraint("DistanceX", 19, 3, 15, 3, 3.0),
    Sketcher.Constraint("DistanceX", 21, 3, 17, 3, 3.0),
    Sketcher.Constraint("DistanceX", 23, 3, 19, 3, 3.0),
    Sketcher.Constraint("DistanceX", 25, 3, 21, 3, 3.0),
    Sketcher.Constraint("Radius", 1, 0.5014),
    Sketcher.Constraint("DistanceX", 3, 3, 1, 3, 1.5),
    Sketcher.Constraint("DistanceX", -1, 1, 1, 3, 24.95),
])
pocket4 = body.newObject("PartDesign::Pocket", "Pocket003")
pocket4.Profile = sketch14
pocket4.Type = "ThroughAll"
body2 = doc.addObject("PartDesign::Body", "Body001")

# Sketch on XY plane
sketch15 = body2.newObject("Sketcher::SketchObject", "Sketch014")
sketch15.AttachmentSupport = (doc.getObject("XY_Plane001"), [""])
sketch15.MapMode = "FlatFace"
sketch15.AttachmentOffset = App.Placement(V(0, 0, 1.4), App.Rotation())
add_polygon(sketch15, [(4.8, 11.596862), (0.3, 11.596862), (0.3, 8.596862), (3.8, 8.596862), (3.8, 6.596526), (0.3, 6.596526), (0.3, 3.596526), (3.8, 3.596526), (3.8, 1.596526), (0.8, 1.596526), (0.8, 1.096526), (4.3, 1.096526), (4.3, 4.096526), (0.8, 4.096526), (0.8, 6.096526), (4.3, 6.096526), (4.3, 9.096526), (0.8, 9.096526), (0.8, 11.096526), (4.8, 11.096526)])  # lines 0-19
sketch15.addConstraint([
    Sketcher.Constraint("Horizontal", 0),
    Sketcher.Constraint("Vertical", 1),
    Sketcher.Constraint("Horizontal", 2),
    Sketcher.Constraint("Vertical", 3),
    Sketcher.Constraint("Horizontal", 4),
    Sketcher.Constraint("Vertical", 5),
    Sketcher.Constraint("Horizontal", 6),
    Sketcher.Constraint("Vertical", 7),
    Sketcher.Constraint("Horizontal", 8),
    Sketcher.Constraint("Vertical", 9),
    Sketcher.Constraint("Horizontal", 10),
    Sketcher.Constraint("Vertical", 11),
    Sketcher.Constraint("Horizontal", 12),
    Sketcher.Constraint("Vertical", 13),
    Sketcher.Constraint("Horizontal", 14),
    Sketcher.Constraint("Vertical", 15),
    Sketcher.Constraint("Horizontal", 16),
    Sketcher.Constraint("Vertical", 17),
    Sketcher.Constraint("Horizontal", 18),
    Sketcher.Constraint("Vertical", 19),
    Sketcher.Constraint("Vertical", 1, 2, 4, 2),
    Sketcher.Constraint("Vertical", 3, 2, 6, 2),
    Sketcher.Constraint("Vertical", 9, 2, 12, 2),
    Sketcher.Constraint("Vertical", 11, 2, 14, 2),
    Sketcher.Constraint("Vertical", 13, 2, 16, 2),
    Sketcher.Constraint("Equal", 6, 10),
    Sketcher.Constraint("Equal", 8, 1),
    Sketcher.Constraint("Equal", 1, 5),
    Sketcher.Constraint("Equal", 5, 11),
    Sketcher.Constraint("Equal", 7, 13),
    Sketcher.Constraint("Equal", 11, 15),
    Sketcher.Constraint("Equal", 13, 17),
    Sketcher.Constraint("DistanceX", 8, 2, 8, 1, 3.0),
    Sketcher.Constraint("DistanceX", 18, 1, 18, 2, 4.0),
    Sketcher.Constraint("DistanceY", 7, 2, 7, 1, 2.0),
    Sketcher.Constraint("DistanceX", 0, 2, 0, 1, 4.5),
    Sketcher.Constraint("DistanceY", 9, 2, 9, 1, 0.5),
    Sketcher.Constraint("DistanceX", -1, 1, 0, 2, 0.3),
    Sketcher.Constraint("DistanceY", 3, 2, 3, 1, 2.000336),
    Sketcher.Constraint("DistanceY", -1, 1, 0, 2, 11.596862),
])
sketch15.setExpression("Constraints[52]", "Params.sketch15_width")
sketch15.setExpression("Constraints[53]", "Params.sketch15_width2")
sketch15.setExpression("Constraints[54]", "Params.sketch15_height")
sketch15.setExpression("Constraints[55]", "Params.sketch15_width3")
sketch15.setExpression("Constraints[56]", "Params.sketch15_height2")
pad11 = body2.newObject("PartDesign::Pad", "Pad010")
pad11.Profile = sketch15
pad11.setExpression("Length", "Params.pad11_length")

doc.recompute()
